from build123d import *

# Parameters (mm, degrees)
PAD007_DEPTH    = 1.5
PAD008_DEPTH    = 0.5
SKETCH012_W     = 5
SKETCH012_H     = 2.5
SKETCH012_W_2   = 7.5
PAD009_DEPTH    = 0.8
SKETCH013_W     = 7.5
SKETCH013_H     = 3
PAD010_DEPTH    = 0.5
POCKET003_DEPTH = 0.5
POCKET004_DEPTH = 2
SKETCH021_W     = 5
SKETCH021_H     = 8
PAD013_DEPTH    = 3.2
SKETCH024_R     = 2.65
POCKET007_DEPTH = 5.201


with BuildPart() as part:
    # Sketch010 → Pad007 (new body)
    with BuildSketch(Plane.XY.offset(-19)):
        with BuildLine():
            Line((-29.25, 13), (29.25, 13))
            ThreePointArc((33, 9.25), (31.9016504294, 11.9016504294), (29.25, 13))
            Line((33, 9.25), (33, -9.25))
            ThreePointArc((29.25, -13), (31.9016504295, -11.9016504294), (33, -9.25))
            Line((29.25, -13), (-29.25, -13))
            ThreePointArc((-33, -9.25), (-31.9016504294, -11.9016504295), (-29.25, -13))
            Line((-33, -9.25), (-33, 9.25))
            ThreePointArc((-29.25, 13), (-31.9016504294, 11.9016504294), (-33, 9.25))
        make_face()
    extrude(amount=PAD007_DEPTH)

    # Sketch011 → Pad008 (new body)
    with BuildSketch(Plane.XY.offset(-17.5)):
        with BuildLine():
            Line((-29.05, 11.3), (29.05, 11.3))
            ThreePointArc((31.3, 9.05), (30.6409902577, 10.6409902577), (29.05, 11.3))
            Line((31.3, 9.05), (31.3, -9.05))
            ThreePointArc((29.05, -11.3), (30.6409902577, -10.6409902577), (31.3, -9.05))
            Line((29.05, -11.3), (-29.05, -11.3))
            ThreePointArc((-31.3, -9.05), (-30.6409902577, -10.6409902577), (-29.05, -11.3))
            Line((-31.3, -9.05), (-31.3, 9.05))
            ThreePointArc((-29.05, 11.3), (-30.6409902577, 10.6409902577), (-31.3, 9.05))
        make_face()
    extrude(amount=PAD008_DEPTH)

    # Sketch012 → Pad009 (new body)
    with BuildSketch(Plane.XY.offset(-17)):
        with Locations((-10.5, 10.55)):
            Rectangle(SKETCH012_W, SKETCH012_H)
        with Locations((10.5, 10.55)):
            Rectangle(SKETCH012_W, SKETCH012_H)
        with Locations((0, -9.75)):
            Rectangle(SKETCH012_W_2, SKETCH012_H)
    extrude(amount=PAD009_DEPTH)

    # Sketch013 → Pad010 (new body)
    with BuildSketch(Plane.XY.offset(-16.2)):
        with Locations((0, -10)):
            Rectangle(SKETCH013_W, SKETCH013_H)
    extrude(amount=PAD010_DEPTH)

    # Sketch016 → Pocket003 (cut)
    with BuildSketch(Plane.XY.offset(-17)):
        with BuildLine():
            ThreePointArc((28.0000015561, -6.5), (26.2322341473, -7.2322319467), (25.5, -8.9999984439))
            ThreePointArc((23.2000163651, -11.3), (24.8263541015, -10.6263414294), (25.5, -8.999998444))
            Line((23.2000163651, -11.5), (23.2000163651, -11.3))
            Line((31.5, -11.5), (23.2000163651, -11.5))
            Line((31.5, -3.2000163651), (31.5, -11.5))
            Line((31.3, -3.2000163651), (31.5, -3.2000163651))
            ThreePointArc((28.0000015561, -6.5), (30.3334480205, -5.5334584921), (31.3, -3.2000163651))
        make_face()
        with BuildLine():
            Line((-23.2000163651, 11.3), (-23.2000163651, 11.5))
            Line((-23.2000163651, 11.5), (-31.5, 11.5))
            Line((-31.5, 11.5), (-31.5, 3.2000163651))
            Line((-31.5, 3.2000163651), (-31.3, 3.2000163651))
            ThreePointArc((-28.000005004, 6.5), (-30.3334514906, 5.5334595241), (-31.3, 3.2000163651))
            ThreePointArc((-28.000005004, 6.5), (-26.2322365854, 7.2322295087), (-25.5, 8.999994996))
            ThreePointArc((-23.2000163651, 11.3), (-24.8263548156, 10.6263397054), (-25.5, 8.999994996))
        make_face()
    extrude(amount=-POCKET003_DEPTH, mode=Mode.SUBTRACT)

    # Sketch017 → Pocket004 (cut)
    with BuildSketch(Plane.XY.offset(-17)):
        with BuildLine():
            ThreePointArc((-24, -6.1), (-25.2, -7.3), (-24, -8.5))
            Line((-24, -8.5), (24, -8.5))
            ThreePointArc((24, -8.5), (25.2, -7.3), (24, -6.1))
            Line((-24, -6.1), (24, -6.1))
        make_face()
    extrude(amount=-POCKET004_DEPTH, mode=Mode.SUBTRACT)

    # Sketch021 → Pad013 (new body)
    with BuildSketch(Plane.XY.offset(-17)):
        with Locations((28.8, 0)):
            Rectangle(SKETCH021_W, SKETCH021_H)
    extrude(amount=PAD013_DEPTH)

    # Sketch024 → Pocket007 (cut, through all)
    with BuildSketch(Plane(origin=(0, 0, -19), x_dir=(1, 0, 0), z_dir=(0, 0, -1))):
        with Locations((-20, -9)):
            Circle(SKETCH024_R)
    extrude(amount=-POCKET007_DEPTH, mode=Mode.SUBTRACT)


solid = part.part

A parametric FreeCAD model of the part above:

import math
import FreeCAD as App
import Part
import Sketcher
Q = App.Units.Quantity


def add_polygon(sketch, points):
    """Adds a closed chain of lines whose ends are joined by coincident constraints."""
    first, n = sketch.GeometryCount, len(points)
    for a, b in zip(points, points[1:] + points[:1]):
        sketch.addGeometry(Part.LineSegment(App.Vector(*a, 0), App.Vector(*b, 0)), False)
    for i in range(n):
        sketch.addConstraint(Sketcher.Constraint("Coincident", first + i, 2, first + (i + 1) % n, 1))

doc = App.newDocument("Part")
body = doc.addObject("PartDesign::Body", "Body")

sketch1 = doc.addObject("Sketcher::SketchObject", "Sketch")
body.addObject(sketch1)
sketch1.AttachmentSupport = (doc.XY_Plane, [""])
sketch1.MapMode = "FlatFace"
sketch1.AttachmentOffset = App.Placement(App.Vector(0, 0, -19), App.Rotation())
sketch1.addGeometry([
    Part.LineSegment(App.Vector(29.2, 13, 0), App.Vector(-29.2, 13, 0)),
    Part.ArcOfCircle(Part.Circle(App.Vector(-29.2, 9.2, 0), App.Vector(0, 0, 1), 3.8), math.radians(90), math.radians(180)),
    Part.LineSegment(App.Vector(-33, 9.2, 0), App.Vector(-33, -9.2, 0)),
    Part.ArcOfCircle(Part.Circle(App.Vector(-29.2, -9.2, 0), App.Vector(0, 0, 1), 3.8), math.radians(180), math.radians(270)),
    Part.LineSegment(App.Vector(-29.2, -13, 0), App.Vector(29.2, -13, 0)),
    Part.ArcOfCircle(Part.Circle(App.Vector(29.2, -9.2, 0), App.Vector(0, 0, 1), 3.8), math.radians(-90), math.radians(0)),
    Part.LineSegment(App.Vector(33, -9.2, 0), App.Vector(33, 9.2, 0)),
    Part.ArcOfCircle(Part.Circle(App.Vector(29.2, 9.2, 0), App.Vector(0, 0, 1), 3.8), math.radians(0), math.radians(90)),
], False)
sketch1.addConstraint([
    Sketcher.Constraint("Tangent", 0, 2, 1, 1),
    Sketcher.Constraint("Tangent", 1, 2, 2, 1),
    Sketcher.Constraint("Tangent", 2, 2, 3, 1),
    Sketcher.Constraint("Tangent", 3, 2, 4, 1),
    Sketcher.Constraint("Tangent", 4, 2, 5, 1),
    Sketcher.Constraint("Tangent", 5, 2, 6, 1),
    Sketcher.Constraint("Tangent", 6, 2, 7, 1),
    Sketcher.Constraint("Tangent", 7, 2, 0, 1),
    Sketcher.Constraint("Horizontal", 0),
    Sketcher.Constraint("Vertical", 2),
    Sketcher.Constraint("Horizontal", 4),
    Sketcher.Constraint("Vertical", 6),
    Sketcher.Constraint("Equal", 1, 3),
    Sketcher.Constraint("Equal", 3, 5),
    Sketcher.Constraint("Equal", 5, 7),
    Sketcher.Constraint("Symmetric", 1, 3, 5, 3, -1, 1),
    Sketcher.Constraint("Radius", 1, Q("3.75 mm")),
    Sketcher.Constraint("DistanceX", 0, 2, 0, 1, Q("58.5 mm")),
    Sketcher.Constraint("DistanceY", 2, 2, 2, 1, Q("18.5 mm")),
])
pad1 = doc.addObject("PartDesign::Pad", "Pad")
body.addObject(pad1)
pad1.Profile = sketch1
pad1.Length = 1.5

sketch2 = doc.addObject("Sketcher::SketchObject", "Sketch001")
body.addObject(sketch2)
sketch2.AttachmentSupport = (doc.XY_Plane, [""])
sketch2.MapMode = "FlatFace"
sketch2.AttachmentOffset = App.Placement(App.Vector(0, 0, -17.5), App.Rotation())
sketch2.addGeometry([
    Part.LineSegment(App.Vector(29.1, 11.3, 0), App.Vector(-29.1, 11.3, 0)),
    Part.ArcOfCircle(Part.Circle(App.Vector(-29.1, 9.1, 0), App.Vector(0, 0, 1), 2.2), math.radians(90), math.radians(180)),
    Part.LineSegment(App.Vector(-31.3, 9.1, 0), App.Vector(-31.3, -9.1, 0)),
    Part.ArcOfCircle(Part.Circle(App.Vector(-29.1, -9.1, 0), App.Vector(0, 0, 1), 2.2), math.radians(180), math.radians(270)),
    Part.LineSegment(App.Vector(-29.1, -11.3, 0), App.Vector(29.1, -11.3, 0)),
    Part.ArcOfCircle(Part.Circle(App.Vector(29.1, -9.1, 0), App.Vector(0, 0, 1), 2.2), math.radians(-90), math.radians(0)),
    Part.LineSegment(App.Vector(31.3, -9.1, 0), App.Vector(31.3, 9.1, 0)),
    Part.ArcOfCircle(Part.Circle(App.Vector(29.1, 9.1, 0), App.Vector(0, 0, 1), 2.2), math.radians(0), math.radians(90)),
], False)
sketch2.addConstraint([
    Sketcher.Constraint("Tangent", 0, 2, 1, 1),
    Sketcher.Constraint("Tangent", 1, 2, 2, 1),
    Sketcher.Constraint("Tangent", 2, 2, 3, 1),
    Sketcher.Constraint("Tangent", 3, 2, 4, 1),
    Sketcher.Constraint("Tangent", 4, 2, 5, 1),
    Sketcher.Constraint("Tangent", 5, 2, 6, 1),
    Sketcher.Constraint("Tangent", 6, 2, 7, 1),
    Sketcher.Constraint("Tangent", 7, 2, 0, 1),
    Sketcher.Constraint("Horizontal", 0),
    Sketcher.Constraint("Vertical", 2),
    Sketcher.Constraint("Horizontal", 4),
    Sketcher.Constraint("Vertical", 6),
    Sketcher.Constraint("Equal", 1, 3),
    Sketcher.Constraint("Equal", 3, 5),
    Sketcher.Constraint("Equal", 5, 7),
    Sketcher.Constraint("Symmetric", 1, 3, 5, 3, -1, 1),
    Sketcher.Constraint("Radius", 1, Q("2.25 mm")),
    Sketcher.Constraint("DistanceX", 0, 2, 0, 1, Q("58.1 mm")),
    Sketcher.Constraint("DistanceY", 2, 2, 2, 1, Q("18.1 mm")),
])
pad2 = doc.addObject("PartDesign::Pad", "Pad001")
body.addObject(pad2)
pad2.Profile = sketch2
pad2.Length = 0.5

sketch3 = doc.addObject("Sketcher::SketchObject", "Sketch002")
body.addObject(sketch3)
sketch3.AttachmentSupport = (doc.XY_Plane, [""])
sketch3.MapMode = "FlatFace"
sketch3.AttachmentOffset = App.Placement(App.Vector(0, 0, -17), App.Rotation())
add_polygon(sketch3, [(-13, 11.8), (-13, 9.3), (-8, 9.3), (-8, 11.8)])
add_polygon(sketch3, [(8, 11.8), (8, 9.3), (13, 9.3), (13, 11.8)])
add_polygon(sketch3, [(-3.8, -8.5), (-3.8, -11), (3.8, -11), (3.8, -8.5)])
sketch3.addConstraint([
    Sketcher.Constraint("Vertical", 0),
    Sketcher.Constraint("Horizontal", 1),
    Sketcher.Constraint("Vertical", 2),
    Sketcher.Constraint("Horizontal", 3),
    Sketcher.Constraint("Vertical", 4),
    Sketcher.Constraint("Horizontal", 5),
    Sketcher.Constraint("Vertical", 6),
    Sketcher.Constraint("Horizontal", 7),
    Sketcher.Constraint("Vertical", 8),
    Sketcher.Constraint("Horizontal", 9),
    Sketcher.Constraint("Vertical", 10),
    Sketcher.Constraint("Horizontal", 11),
    Sketcher.Constraint("Symmetric", 1, 2, 4, 2, -2),
    Sketcher.Constraint("Symmetric", 3, 2, 6, 2, -2),
    Sketcher.Constraint("Equal", 6, 8),
    Sketcher.Constraint("DistanceX", 1, 1, 1, 2, Q("5 mm")),
    Sketcher.Constraint("DistanceX", 9, 1, 9, 2, Q("7.5 mm")),
    Sketcher.Constraint("DistanceY", 0, 2, 0, 1, Q("2.5 mm")),
    Sketcher.Constraint("DistanceX", 0, 2, -1, 1, Q("13 mm")),
    Sketcher.Constraint("DistanceY", 8, 2, -1, 1, Q("11 mm")),
    Sketcher.Constraint("DistanceY", -1, 1, 0, 2, Q("9.3 mm")),
    Sketcher.Constraint("DistanceX", 8, 2, -1, 1, Q("3.75 mm")),
])
pad3 = doc.addObject("PartDesign::Pad", "Pad002")
body.addObject(pad3)
pad3.Profile = sketch3
pad3.Length = 0.8

sketch4 = doc.addObject("Sketcher::SketchObject", "Sketch003")
body.addObject(sketch4)
sketch4.AttachmentSupport = (doc.XY_Plane, [""])
sketch4.MapMode = "FlatFace"
sketch4.AttachmentOffset = App.Placement(App.Vector(0, 0, -16.2), App.Rotation())
add_polygon(sketch4, [(-3.8, -8.5), (-3.8, -11.5), (3.8, -11.5), (3.8, -8.5)])
sketch4.addConstraint([
    Sketcher.Constraint("Vertical", 0),
    Sketcher.Constraint("Horizontal", 1),
    Sketcher.Constraint("Vertical", 2),
    Sketcher.Constraint("Horizontal", 3),
    Sketcher.Constraint("DistanceY", 0, 2, 0, 1, Q("3 mm")),
    Sketcher.Constraint("DistanceX", 1, 1, 1, 2, Q("7.5 mm")),
    Sketcher.Constraint("DistanceY", 0, 2, -1, 1, Q("11.5 mm")),
    Sketcher.Constraint("DistanceX", 0, 2, -1, 1, Q("3.75 mm")),
])
pad4 = doc.addObject("PartDesign::Pad", "Pad003")
body.addObject(pad4)
pad4.Profile = sketch4
pad4.Length = 0.5

sketch5 = doc.addObject("Sketcher::SketchObject", "Sketch004")
body.addObject(sketch5)
sketch5.AttachmentSupport = (doc.XY_Plane, [""])
sketch5.MapMode = "FlatFace"
sketch5.AttachmentOffset = App.Placement(App.Vector(0, 0, -17), App.Rotation())
sketch5.addGeometry([
    Part.ArcOfCircle(Part.Circle(App.Vector(28, -9, 0), App.Vector(0, 0, 1), 2.5), math.radians(90), math.radians(180)),
    Part.ArcOfCircle(Part.Circle(App.Vector(23.2, -9, 0), App.Vector(0, 0, 1), 2.3), math.radians(-90), math.radians(0)),
    Part.LineSegment(App.Vector(23.2, -11.3, 0), App.Vector(23.2, -11.5, 0)),
    Part.LineSegment(App.Vector(23.2, -11.5, 0), App.Vector(31.5, -11.5, 0)),
    Part.LineSegment(App.Vector(31.5, -11.5, 0), App.Vector(31.5, -3.2, 0)),
    Part.LineSegment(App.Vector(31.5, -3.2, 0), App.Vector(31.3, -3.2, 0)),
    Part.ArcOfCircle(Part.Circle(App.Vector(28, -3.2, 0), App.Vector(0, 0, 1), 3.3), math.radians(-90), math.radians(0)),
    Part.LineSegment(App.Vector(-23.2, 11.3, 0), App.Vector(-23.2, 11.5, 0)),
    Part.LineSegment(App.Vector(-23.2, 11.5, 0), App.Vector(-31.5, 11.5, 0)),
    Part.LineSegment(App.Vector(-31.5, 11.5, 0), App.Vector(-31.5, 3.2, 0)),
    Part.LineSegment(App.Vector(-31.5, 3.2, 0), App.Vector(-31.3, 3.2, 0)),
    Part.ArcOfCircle(Part.Circle(App.Vector(-28, 3.2, 0), App.Vector(0, 0, 1), 3.3), math.radians(90), math.radians(180)),
    Part.ArcOfCircle(Part.Circle(App.Vector(-28, 9, 0), App.Vector(0, 0, 1), 2.5), math.radians(-90), math.radians(0)),
    Part.ArcOfCircle(Part.Circle(App.Vector(-23.2, 9, 0), App.Vector(0, 0, 1), 2.3), math.radians(90), math.radians(180)),
], False)
sketch5.addConstraint([
    Sketcher.Constraint("Coincident", 0, 2, 1, 2),
    Sketcher.Constraint("Coincident", 1, 1, 2, 1),
    Sketcher.Constraint("Coincident", 2, 2, 3, 1),
    Sketcher.Constraint("Coincident", 3, 2, 4, 1),
    Sketcher.Constraint("Coincident", 4, 2, 5, 1),
    Sketcher.Constraint("Coincident", 5, 2, 6, 2),
    Sketcher.Constraint("Tangent", 6, 1, 0, 1),
    Sketcher.Constraint("Coincident", 7, 2, 8, 1),
    Sketcher.Constraint("Coincident", 8, 2, 9, 1),
    Sketcher.Constraint("Coincident", 9, 2, 10, 1),
    Sketcher.Constraint("Coincident", 10, 2, 11, 2),
    Sketcher.Constraint("Tangent", 11, 1, 12, 1),
    Sketcher.Constraint("Coincident", 12, 2, 13, 2),
    Sketcher.Constraint("Coincident", 13, 1, 7, 1),
    Sketcher.Constraint("Vertical", 2),
    Sketcher.Constraint("Horizontal", 3),
    Sketcher.Constraint("Vertical", 4),
    Sketcher.Constraint("Horizontal", 5),
    Sketcher.Constraint("Vertical", 7),
    Sketcher.Constraint("Horizontal", 8),
    Sketcher.Constraint("Vertical", 9),
    Sketcher.Constraint("Horizontal", 10),
    Sketcher.Constraint("Equal", 0, 12),
    Sketcher.Constraint("Equal", 1, 13),
    Sketcher.Constraint("Symmetric", 0, 3, 12, 3, -1, 1),
    Sketcher.Constraint("Symmetric", 2, 2, 7, 2, -1, 1),
    Sketcher.Constraint("Symmetric", 4, 2, 9, 2, -1, 1),
    Sketcher.Constraint("Vertical", 0, 3, 6, 1),
    Sketcher.Constraint("Equal", 5, 10),
    Sketcher.Constraint("Equal", 10, 2),
    Sketcher.Constraint("Equal", 8, 4),
    Sketcher.Constraint("Equal", 2, 7),
    Sketcher.Constraint("Radius", 0, Q("2.5 mm")),
    Sketcher.Constraint("DistanceX", 5, 2, 5, 1, Q("0.2 mm")),
    Sketcher.Constraint("DistanceX", -1, 1, 0, 3, Q("28 mm")),
    Sketcher.Constraint("DistanceY", 0, 3, -1, 1, Q("9 mm")),
    Sketcher.Constraint("DistanceY", 0, 2, -1, 1, Q("8.999998 mm")),
    Sketcher.Constraint("DistanceX", 0, 2, 3, 2, Q("6 mm")),
    Sketcher.Constraint("DistanceY", 1, 1, -1, 1, Q("11.3 mm")),
    Sketcher.Constraint("DistanceX", 11, 1, 13, 3, Q("4.799999 mm")),
    Sketcher.Constraint("Radius", 11, Q("3.299989 mm")),
    Sketcher.Constraint("DistanceX", 3, 1, 3, 2, Q("8.299984 mm")),
    Sketcher.Constraint("DistanceY", -1, 1, 12, 2, Q("8.999995 mm")),
])
pocket1 = doc.addObject("PartDesign::Pocket", "Pocket")
body.addObject(pocket1)
pocket1.Profile = sketch5
pocket1.Length = 0.5

sketch6 = doc.addObject("Sketcher::SketchObject", "Sketch005")
body.addObject(sketch6)
sketch6.AttachmentSupport = (doc.XY_Plane, [""])
sketch6.MapMode = "FlatFace"
sketch6.AttachmentOffset = App.Placement(App.Vector(0, 0, -17), App.Rotation())
sketch6.addGeometry([
    Part.ArcOfCircle(Part.Circle(App.Vector(-24, -7.3, 0), App.Vector(0, 0, 1), 1.2), math.radians(90), math.radians(270)),
    Part.LineSegment(App.Vector(-24, -8.5, 0), App.Vector(24, -8.5, 0)),
    Part.ArcOfCircle(Part.Circle(App.Vector(24, -7.3, 0), App.Vector(0, 0, 1), 1.2), math.radians(-90), math.radians(90)),
    Part.LineSegment(App.Vector(24, -6.1, 0), App.Vector(-24, -6.1, 0)),
], False)
sketch6.addConstraint([
    Sketcher.Constraint("Tangent", 0, 2, 1, 1),
    Sketcher.Constraint("Tangent", 1, 2, 2, 1),
    Sketcher.Constraint("Tangent", 2, 2, 3, 1),
    Sketcher.Constraint("Tangent", 3, 2, 0, 1),
    Sketcher.Constraint("Horizontal", 1),
    Sketcher.Constraint("Horizontal", 3),
    Sketcher.Constraint("Radius", 0, Q("1.2 mm")),
    Sketcher.Constraint("DistanceX", 1, 1, 1, 2, Q("48 mm")),
    Sketcher.Constraint("DistanceX", 0, 3, -1, 1, Q("24 mm")),
    Sketcher.Constraint("DistanceY", 0, 3, -1, 1, Q("7.3 mm")),
])
pocket2 = doc.addObject("PartDesign::Pocket", "Pocket001")
body.addObject(pocket2)
pocket2.Profile = sketch6
pocket2.Length = 2

sketch7 = doc.addObject("Sketcher::SketchObject", "Sketch006")
body.addObject(sketch7)
sketch7.AttachmentSupport = (doc.XY_Plane, [""])
sketch7.MapMode = "FlatFace"
sketch7.AttachmentOffset = App.Placement(App.Vector(0, 0, -17), App.Rotation())
add_polygon(sketch7, [(26, 4), (26, -4), (31, -4), (31, 4)])
sketch7.addConstraint([
    Sketcher.Constraint("Vertical", 0),
    Sketcher.Constraint("Horizontal", 1),
    Sketcher.Constraint("Vertical", 2),
    Sketcher.Constraint("Horizontal", 3),
    Sketcher.Constraint("DistanceX", 1, 1, 1, 2, Q("5 mm")),
    Sketcher.Constraint("DistanceY", 0, 2, 0, 1, Q("8 mm")),
    Sketcher.Constraint("DistanceY", 0, 2, -1, 1, Q("4 mm")),
    Sketcher.Constraint("DistanceX", -1, 1, 0, 2, Q("26.3 mm")),
])
pad5 = doc.addObject("PartDesign::Pad", "Pad004")
body.addObject(pad5)
pad5.Profile = sketch7
pad5.Length = 3.2

sketch8 = doc.addObject("Sketcher::SketchObject", "Sketch007")
body.addObject(sketch8)
sketch8.AttachmentSupport = (doc.XY_Plane, [""])
sketch8.MapMode = "FlatFace"
sketch8.AttachmentOffset = App.Placement(App.Vector(0, 0, -19), App.Rotation())
sketch8.addGeometry(Part.Circle(App.Vector(-20, 9, 0), App.Vector(0, 0, 1), 2.6), False)
sketch8.addConstraint([
    Sketcher.Constraint("Diameter", 0, Q("5.3 mm")),
    Sketcher.Constraint("DistanceX", 0, 3, -1, 1, Q("20 mm")),
    Sketcher.Constraint("DistanceY", -1, 1, 0, 3, Q("9 mm")),
])
pocket3 = doc.addObject("PartDesign::Pocket", "Pocket002")
body.addObject(pocket3)
pocket3.Profile = sketch8
pocket3.Type = "ThroughAll"
pocket3.Reversed = True

doc.recompute()
